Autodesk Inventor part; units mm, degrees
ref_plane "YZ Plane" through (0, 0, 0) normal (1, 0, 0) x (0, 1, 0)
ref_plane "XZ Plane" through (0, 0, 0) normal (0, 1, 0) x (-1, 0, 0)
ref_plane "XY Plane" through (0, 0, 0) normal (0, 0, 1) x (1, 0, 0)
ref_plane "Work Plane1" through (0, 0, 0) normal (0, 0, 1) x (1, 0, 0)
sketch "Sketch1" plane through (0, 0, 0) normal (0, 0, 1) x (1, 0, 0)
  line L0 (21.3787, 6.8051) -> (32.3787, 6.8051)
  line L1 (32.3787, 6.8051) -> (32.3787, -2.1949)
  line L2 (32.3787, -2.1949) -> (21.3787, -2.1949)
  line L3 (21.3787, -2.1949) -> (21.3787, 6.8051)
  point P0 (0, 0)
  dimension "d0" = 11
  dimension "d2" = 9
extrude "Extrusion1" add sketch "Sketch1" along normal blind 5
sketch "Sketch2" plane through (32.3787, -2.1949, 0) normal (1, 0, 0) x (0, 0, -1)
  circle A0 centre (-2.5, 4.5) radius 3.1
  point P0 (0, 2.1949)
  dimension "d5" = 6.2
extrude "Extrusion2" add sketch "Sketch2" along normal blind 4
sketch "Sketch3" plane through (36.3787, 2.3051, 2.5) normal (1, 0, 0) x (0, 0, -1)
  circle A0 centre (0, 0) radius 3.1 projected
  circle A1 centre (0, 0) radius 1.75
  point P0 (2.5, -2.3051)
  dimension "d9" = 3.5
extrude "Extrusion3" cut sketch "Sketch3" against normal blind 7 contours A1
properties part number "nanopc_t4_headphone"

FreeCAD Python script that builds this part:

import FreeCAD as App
import Part
import Sketcher

V = App.Vector


def add_polygon(sketch, points):
    """Adds a closed chain of lines whose ends are joined by coincident constraints."""
    first, n = sketch.GeometryCount, len(points)
    for a, b in zip(points, points[1:] + points[:1]):
        sketch.addGeometry(Part.LineSegment(App.Vector(*a, 0), App.Vector(*b, 0)), False)
    for i in range(n):
        sketch.addConstraint(Sketcher.Constraint("Coincident", first + i, 2, first + (i + 1) % n, 1))

doc = App.newDocument("Part")
body = doc.addObject("PartDesign::Body", "Body")

# Sketch on XY plane
sketch1 = body.newObject("Sketcher::SketchObject", "Sketch")
sketch1.AttachmentSupport = (doc.getObject("XY_Plane"), [""])
sketch1.MapMode = "FlatFace"
add_polygon(sketch1, [(32, 7), (21, 7), (21, -2), (32, -2)])  # lines 0-3
sketch1.addConstraint([
    Sketcher.Constraint("Horizontal", 0),
    Sketcher.Constraint("Vertical", 1),
    Sketcher.Constraint("Horizontal", 2),
    Sketcher.Constraint("Vertical", 3),
    Sketcher.Constraint("DistanceX", 0, 2, 0, 1, 11.0),
    Sketcher.Constraint("DistanceY", 1, 2, 1, 1, 9.0),
    Sketcher.Constraint("DistanceY", -1, 1, 0, 2, 6.805),
    Sketcher.Constraint("DistanceX", -1, 1, 0, 2, 21.3787),
])
pad1 = body.newObject("PartDesign::Pad", "Pad")
pad1.Profile = sketch1
pad1.Length = 5

# Sketch on YZ plane
sketch2 = body.newObject("Sketcher::SketchObject", "Sketch001")
sketch2.AttachmentSupport = (doc.getObject("YZ_Plane"), [""])
sketch2.MapMode = "FlatFace"
sketch2.AttachmentOffset = App.Placement(V(0, 0, 32.3787), App.Rotation())
sketch2.addGeometry(Part.Circle(V(2.3, 2.5, 0), V(0, 0, 1), 3.1), False)
sketch2.addConstraint([
    Sketcher.Constraint("Diameter", 0, 6.2),
    Sketcher.Constraint("DistanceY", -1, 1, 0, 3, 2.5),
    Sketcher.Constraint("DistanceX", -1, 1, 0, 3, 2.305),
])
pad2 = body.newObject("PartDesign::Pad", "Pad001")
pad2.Profile = sketch2
pad2.Length = 4

# Sketch on YZ plane
sketch3 = body.newObject("Sketcher::SketchObject", "Sketch002")
sketch3.AttachmentSupport = (doc.getObject("YZ_Plane"), [""])
sketch3.MapMode = "FlatFace"
sketch3.AttachmentOffset = App.Placement(V(0, 0, 36.3787), App.Rotation())
sketch3.addGeometry(Part.Circle(V(2.3, 2.5, 0), V(0, 0, 1), 1.8), False)
sketch3.addConstraint([
    Sketcher.Constraint("Diameter", 0, 3.5),
    Sketcher.Constraint("DistanceY", -1, 1, 0, 3, 2.5),
    Sketcher.Constraint("DistanceX", -1, 1, 0, 3, 2.305),
])
pocket1 = body.newObject("PartDesign::Pocket", "Pocket")
pocket1.Profile = sketch3
pocket1.Length = 7

doc.recompute()
